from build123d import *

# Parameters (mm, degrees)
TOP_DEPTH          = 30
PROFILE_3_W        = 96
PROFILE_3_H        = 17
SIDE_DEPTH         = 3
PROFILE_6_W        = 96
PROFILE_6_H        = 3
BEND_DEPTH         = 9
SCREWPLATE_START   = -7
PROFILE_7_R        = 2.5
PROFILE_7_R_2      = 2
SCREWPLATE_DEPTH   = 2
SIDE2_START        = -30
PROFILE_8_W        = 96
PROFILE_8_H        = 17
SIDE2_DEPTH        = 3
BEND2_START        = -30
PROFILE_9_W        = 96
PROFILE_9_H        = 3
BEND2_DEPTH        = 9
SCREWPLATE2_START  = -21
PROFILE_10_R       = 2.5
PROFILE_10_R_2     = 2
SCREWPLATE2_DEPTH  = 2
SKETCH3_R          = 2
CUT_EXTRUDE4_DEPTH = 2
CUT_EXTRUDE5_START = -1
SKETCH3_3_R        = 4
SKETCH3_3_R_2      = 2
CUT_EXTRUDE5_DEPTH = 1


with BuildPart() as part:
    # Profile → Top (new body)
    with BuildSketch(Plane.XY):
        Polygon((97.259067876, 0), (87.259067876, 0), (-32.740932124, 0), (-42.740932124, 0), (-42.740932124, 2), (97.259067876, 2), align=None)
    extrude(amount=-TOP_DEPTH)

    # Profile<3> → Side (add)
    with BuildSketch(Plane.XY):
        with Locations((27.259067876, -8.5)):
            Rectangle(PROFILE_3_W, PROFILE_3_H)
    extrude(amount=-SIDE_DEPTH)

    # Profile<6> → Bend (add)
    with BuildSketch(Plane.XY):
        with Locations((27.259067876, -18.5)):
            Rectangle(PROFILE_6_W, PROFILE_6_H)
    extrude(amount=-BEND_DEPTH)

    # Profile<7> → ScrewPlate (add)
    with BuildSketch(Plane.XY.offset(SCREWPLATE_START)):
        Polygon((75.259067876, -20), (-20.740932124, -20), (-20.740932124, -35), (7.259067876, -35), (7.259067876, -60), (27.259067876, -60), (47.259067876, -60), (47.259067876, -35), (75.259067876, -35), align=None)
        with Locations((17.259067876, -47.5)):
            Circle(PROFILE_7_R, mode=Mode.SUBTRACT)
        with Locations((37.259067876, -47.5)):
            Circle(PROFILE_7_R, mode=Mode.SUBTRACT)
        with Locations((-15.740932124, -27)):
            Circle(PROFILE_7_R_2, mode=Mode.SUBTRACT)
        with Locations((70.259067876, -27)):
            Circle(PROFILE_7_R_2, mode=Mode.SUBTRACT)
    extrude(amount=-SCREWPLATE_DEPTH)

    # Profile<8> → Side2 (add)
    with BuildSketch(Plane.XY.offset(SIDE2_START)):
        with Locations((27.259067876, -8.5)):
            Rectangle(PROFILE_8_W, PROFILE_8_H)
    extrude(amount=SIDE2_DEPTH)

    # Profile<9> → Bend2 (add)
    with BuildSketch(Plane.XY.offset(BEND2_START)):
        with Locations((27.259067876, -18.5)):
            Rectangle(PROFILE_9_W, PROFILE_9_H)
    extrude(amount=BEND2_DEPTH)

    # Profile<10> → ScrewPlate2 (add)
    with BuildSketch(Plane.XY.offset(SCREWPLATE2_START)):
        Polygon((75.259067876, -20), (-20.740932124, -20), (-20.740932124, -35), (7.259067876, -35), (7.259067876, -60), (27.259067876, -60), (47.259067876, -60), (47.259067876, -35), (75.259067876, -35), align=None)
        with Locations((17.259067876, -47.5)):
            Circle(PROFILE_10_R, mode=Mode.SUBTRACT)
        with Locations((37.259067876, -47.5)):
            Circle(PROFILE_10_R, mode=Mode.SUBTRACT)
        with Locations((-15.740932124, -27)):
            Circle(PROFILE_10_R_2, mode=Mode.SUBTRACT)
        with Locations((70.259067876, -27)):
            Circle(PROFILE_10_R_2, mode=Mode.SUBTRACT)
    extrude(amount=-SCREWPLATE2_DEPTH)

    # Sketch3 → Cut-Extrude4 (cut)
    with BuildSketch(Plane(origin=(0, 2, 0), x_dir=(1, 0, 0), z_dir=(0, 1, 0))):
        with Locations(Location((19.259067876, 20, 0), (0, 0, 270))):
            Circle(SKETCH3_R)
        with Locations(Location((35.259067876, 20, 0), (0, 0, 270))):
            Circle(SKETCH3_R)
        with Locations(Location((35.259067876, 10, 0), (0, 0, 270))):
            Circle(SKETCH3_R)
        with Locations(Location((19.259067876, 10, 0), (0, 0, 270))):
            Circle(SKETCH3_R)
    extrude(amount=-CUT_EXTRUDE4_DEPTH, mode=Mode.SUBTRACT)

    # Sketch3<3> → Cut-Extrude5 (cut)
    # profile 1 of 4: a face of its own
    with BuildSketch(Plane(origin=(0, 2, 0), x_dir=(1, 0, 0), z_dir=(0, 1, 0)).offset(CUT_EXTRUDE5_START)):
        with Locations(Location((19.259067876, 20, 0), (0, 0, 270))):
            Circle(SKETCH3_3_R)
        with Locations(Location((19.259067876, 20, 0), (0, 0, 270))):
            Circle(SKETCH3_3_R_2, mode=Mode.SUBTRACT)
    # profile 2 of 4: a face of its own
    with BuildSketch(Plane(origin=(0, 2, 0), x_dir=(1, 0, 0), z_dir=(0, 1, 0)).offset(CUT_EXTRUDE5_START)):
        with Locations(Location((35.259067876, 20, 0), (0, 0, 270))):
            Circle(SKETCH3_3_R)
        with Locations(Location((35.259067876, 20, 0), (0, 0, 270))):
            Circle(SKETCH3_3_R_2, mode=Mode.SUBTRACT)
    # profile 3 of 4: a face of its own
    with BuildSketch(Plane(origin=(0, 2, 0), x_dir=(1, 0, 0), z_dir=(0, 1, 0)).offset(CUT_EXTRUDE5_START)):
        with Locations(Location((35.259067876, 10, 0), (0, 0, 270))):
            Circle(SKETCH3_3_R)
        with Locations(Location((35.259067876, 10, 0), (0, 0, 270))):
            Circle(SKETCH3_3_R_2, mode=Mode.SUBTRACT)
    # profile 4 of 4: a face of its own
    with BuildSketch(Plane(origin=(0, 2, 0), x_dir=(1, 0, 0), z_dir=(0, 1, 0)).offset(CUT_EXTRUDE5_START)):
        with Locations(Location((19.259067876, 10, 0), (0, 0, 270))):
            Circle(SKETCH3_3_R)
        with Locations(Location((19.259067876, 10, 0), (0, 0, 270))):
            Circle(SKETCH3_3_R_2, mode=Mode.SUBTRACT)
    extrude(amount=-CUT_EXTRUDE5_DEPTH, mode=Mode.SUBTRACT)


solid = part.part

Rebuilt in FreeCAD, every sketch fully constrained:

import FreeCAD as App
import Part
import Sketcher

V = App.Vector
Q = App.Units.Quantity


def add_polygon(sketch, points):
    """Adds a closed chain of lines whose ends are joined by coincident constraints."""
    first, n = sketch.GeometryCount, len(points)
    for a, b in zip(points, points[1:] + points[:1]):
        sketch.addGeometry(Part.LineSegment(App.Vector(*a, 0), App.Vector(*b, 0)), False)
    for i in range(n):
        sketch.addConstraint(Sketcher.Constraint("Coincident", first + i, 2, first + (i + 1) % n, 1))

doc = App.newDocument("Part")
body = doc.addObject("PartDesign::Body", "Body")

# Sketch on XY plane
sketch1 = body.newObject("Sketcher::SketchObject", "Sketch")
sketch1.AttachmentSupport = (doc.getObject("XY_Plane"), [""])
sketch1.MapMode = "FlatFace"
add_polygon(sketch1, [(-42.7, 0), (97.3, 0), (97.3, 2), (-42.7, 2)])  # lines 0-3
sketch1.addConstraint(Sketcher.Constraint("Horizontal", 0))
sketch1.addConstraint(Sketcher.Constraint("Vertical", 1))
sketch1.addConstraint(Sketcher.Constraint("Horizontal", 2))
sketch1.addConstraint(Sketcher.Constraint("Vertical", 3))
sketch1.addConstraint(Sketcher.Constraint("PointOnObject", 0, 2, -1))
sketch1.addConstraint(Sketcher.Constraint("DistanceX", 0, 1, 0, 2, Q("140 mm")))
sketch1.addConstraint(Sketcher.Constraint("DistanceY", 1, 1, 1, 2, Q("2 mm")))
sketch1.addConstraint(Sketcher.Constraint("DistanceX", -1, 1, 0, 2, Q("97.259068 mm")))
pad1 = body.newObject("PartDesign::Pad", "Pad")
pad1.Profile = sketch1
pad1.Length = 30
pad1.Reversed = True

# Sketch on XY plane
sketch2 = body.newObject("Sketcher::SketchObject", "Sketch001")
sketch2.AttachmentSupport = (doc.getObject("XY_Plane"), [""])
sketch2.MapMode = "FlatFace"
add_polygon(sketch2, [(-21, 0), (-21, -17), (75, -17), (75, 0)])  # lines 0-3
sketch2.addConstraint(Sketcher.Constraint("Vertical", 0))
sketch2.addConstraint(Sketcher.Constraint("Horizontal", 1))
sketch2.addConstraint(Sketcher.Constraint("Vertical", 2))
sketch2.addConstraint(Sketcher.Constraint("Horizontal", 3))
sketch2.addConstraint(Sketcher.Constraint("PointOnObject", 2, 2, -1))
sketch2.addConstraint(Sketcher.Constraint("DistanceX", 1, 1, 1, 2, Q("96 mm")))
sketch2.addConstraint(Sketcher.Constraint("DistanceY", 0, 2, 0, 1, Q("17 mm")))
sketch2.addConstraint(Sketcher.Constraint("DistanceX", 0, 2, -1, 1, Q("20.740932 mm")))
pad2 = body.newObject("PartDesign::Pad", "Pad001")
pad2.Profile = sketch2
pad2.Length = 3
pad2.Reversed = True

# Sketch on XY plane
sketch3 = body.newObject("Sketcher::SketchObject", "Sketch002")
sketch3.AttachmentSupport = (doc.getObject("XY_Plane"), [""])
sketch3.MapMode = "FlatFace"
add_polygon(sketch3, [(-20.7, -17), (-20.7, -20), (75.3, -20), (75.3, -17)])  # lines 0-3
sketch3.addConstraint(Sketcher.Constraint("Vertical", 0))
sketch3.addConstraint(Sketcher.Constraint("Horizontal", 1))
sketch3.addConstraint(Sketcher.Constraint("Vertical", 2))
sketch3.addConstraint(Sketcher.Constraint("Horizontal", 3))
sketch3.addConstraint(Sketcher.Constraint("DistanceX", 1, 1, 1, 2, Q("96 mm")))
sketch3.addConstraint(Sketcher.Constraint("DistanceY", 0, 2, 0, 1, Q("3 mm")))
sketch3.addConstraint(Sketcher.Constraint("DistanceY", 0, 2, -1, 1, Q("20 mm")))
sketch3.addConstraint(Sketcher.Constraint("DistanceX", 0, 2, -1, 1, Q("20.740932 mm")))
pad3 = body.newObject("PartDesign::Pad", "Pad002")
pad3.Profile = sketch3
pad3.Length = 9
pad3.Reversed = True

# Sketch on XY plane
sketch4 = body.newObject("Sketcher::SketchObject", "Sketch003")
sketch4.AttachmentSupport = (doc.getObject("XY_Plane"), [""])
sketch4.MapMode = "FlatFace"
sketch4.AttachmentOffset = App.Placement(V(0, 0, -7), App.Rotation())
add_polygon(sketch4, [(75.3, -20), (-20.7, -20), (-20.7, -35), (7.3, -35), (7.3, -60), (47.3, -60), (47.3, -35), (75.3, -35)])  # lines 0-7
sketch4.addGeometry(Part.Circle(V(17.3, -47.5, 0), V(0, 0, 1), 2.5), False)  # 8
sketch4.addGeometry(Part.Circle(V(37.3, -47.5, 0), V(0, 0, 1), 2.5), False)  # 9
sketch4.addGeometry(Part.Circle(V(-15.7, -27, 0), V(0, 0, 1), 2), False)  # 10
sketch4.addGeometry(Part.Circle(V(70.3, -27, 0), V(0, 0, 1), 2), False)  # 11
sketch4.addConstraint(Sketcher.Constraint("Horizontal", 0))
sketch4.addConstraint(Sketcher.Constraint("Vertical", 1))
sketch4.addConstraint(Sketcher.Constraint("Horizontal", 2))
sketch4.addConstraint(Sketcher.Constraint("Vertical", 3))
sketch4.addConstraint(Sketcher.Constraint("Horizontal", 4))
sketch4.addConstraint(Sketcher.Constraint("Vertical", 5))
sketch4.addConstraint(Sketcher.Constraint("Horizontal", 6))
sketch4.addConstraint(Sketcher.Constraint("Vertical", 7))
sketch4.addConstraint(Sketcher.Constraint("Equal", 8, 9))
sketch4.addConstraint(Sketcher.Constraint("Equal", 10, 11))
sketch4.addConstraint(Sketcher.Constraint("Horizontal", 8, 3, 9, 3))
sketch4.addConstraint(Sketcher.Constraint("Horizontal", 10, 3, 11, 3))
sketch4.addConstraint(Sketcher.Constraint("Horizontal", 2, 2, 5, 2))
sketch4.addConstraint(Sketcher.Constraint("Equal", 2, 6))
sketch4.addConstraint(Sketcher.Constraint("Diameter", 8, Q("5 mm")))
sketch4.addConstraint(Sketcher.Constraint("Diameter", 10, Q("4 mm")))
sketch4.addConstraint(Sketcher.Constraint("DistanceX", 0, 2, 0, 1, Q("96 mm")))
sketch4.addConstraint(Sketcher.Constraint("DistanceX", 2, 1, 2, 2, Q("28 mm")))
sketch4.addConstraint(Sketcher.Constraint("DistanceY", 1, 2, 1, 1, Q("15 mm")))
sketch4.addConstraint(Sketcher.Constraint("DistanceY", 3, 2, 3, 1, Q("25 mm")))
sketch4.addConstraint(Sketcher.Constraint("DistanceY", 10, 3, -1, 1, Q("27 mm")))
sketch4.addConstraint(Sketcher.Constraint("DistanceY", 0, 2, -1, 1, Q("20 mm")))
sketch4.addConstraint(Sketcher.Constraint("DistanceX", 8, 3, 9, 3, Q("20 mm")))
sketch4.addConstraint(Sketcher.Constraint("DistanceX", 10, 3, 8, 3, Q("33 mm")))
sketch4.addConstraint(Sketcher.Constraint("DistanceX", 9, 3, 11, 3, Q("33 mm")))
sketch4.addConstraint(Sketcher.Constraint("DistanceX", 0, 2, 10, 3, Q("5 mm")))
sketch4.addConstraint(Sketcher.Constraint("DistanceY", 8, 3, -1, 1, Q("47.5 mm")))
sketch4.addConstraint(Sketcher.Constraint("DistanceX", -1, 1, 8, 3, Q("17.259068 mm")))
pad4 = body.newObject("PartDesign::Pad", "Pad003")
pad4.Profile = sketch4
pad4.Length = 2
pad4.Reversed = True

# Sketch on XY plane
sketch5 = body.newObject("Sketcher::SketchObject", "Sketch004")
sketch5.AttachmentSupport = (doc.getObject("XY_Plane"), [""])
sketch5.MapMode = "FlatFace"
sketch5.AttachmentOffset = App.Placement(V(0, 0, -30), App.Rotation())
add_polygon(sketch5, [(-21, 0), (-21, -17), (75, -17), (75, 0)])  # lines 0-3
sketch5.addConstraint(Sketcher.Constraint("Vertical", 0))
sketch5.addConstraint(Sketcher.Constraint("Horizontal", 1))
sketch5.addConstraint(Sketcher.Constraint("Vertical", 2))
sketch5.addConstraint(Sketcher.Constraint("Horizontal", 3))
sketch5.addConstraint(Sketcher.Constraint("PointOnObject", 2, 2, -1))
sketch5.addConstraint(Sketcher.Constraint("DistanceX", 1, 1, 1, 2, Q("96 mm")))
sketch5.addConstraint(Sketcher.Constraint("DistanceY", 0, 2, 0, 1, Q("17 mm")))
sketch5.addConstraint(Sketcher.Constraint("DistanceX", 0, 2, -1, 1, Q("20.740932 mm")))
pad5 = body.newObject("PartDesign::Pad", "Pad004")
pad5.Profile = sketch5
pad5.Length = 3

# Sketch on XY plane
sketch6 = body.newObject("Sketcher::SketchObject", "Sketch005")
sketch6.AttachmentSupport = (doc.getObject("XY_Plane"), [""])
sketch6.MapMode = "FlatFace"
sketch6.AttachmentOffset = App.Placement(V(0, 0, -30), App.Rotation())
add_polygon(sketch6, [(-20.7, -17), (-20.7, -20), (75.3, -20), (75.3, -17)])  # lines 0-3
sketch6.addConstraint(Sketcher.Constraint("Vertical", 0))
sketch6.addConstraint(Sketcher.Constraint("Horizontal", 1))
sketch6.addConstraint(Sketcher.Constraint("Vertical", 2))
sketch6.addConstraint(Sketcher.Constraint("Horizontal", 3))
sketch6.addConstraint(Sketcher.Constraint("DistanceX", 1, 1, 1, 2, Q("96 mm")))
sketch6.addConstraint(Sketcher.Constraint("DistanceY", 0, 2, 0, 1, Q("3 mm")))
sketch6.addConstraint(Sketcher.Constraint("DistanceY", 0, 2, -1, 1, Q("20 mm")))
sketch6.addConstraint(Sketcher.Constraint("DistanceX", 0, 2, -1, 1, Q("20.740932 mm")))
pad6 = body.newObject("PartDesign::Pad", "Pad005")
pad6.Profile = sketch6
pad6.Length = 9

# Sketch on XY plane
sketch7 = body.newObject("Sketcher::SketchObject", "Sketch006")
sketch7.AttachmentSupport = (doc.getObject("XY_Plane"), [""])
sketch7.MapMode = "FlatFace"
sketch7.AttachmentOffset = App.Placement(V(0, 0, -21), App.Rotation())
add_polygon(sketch7, [(75.3, -20), (-20.7, -20), (-20.7, -35), (7.3, -35), (7.3, -60), (47.3, -60), (47.3, -35), (75.3, -35)])  # lines 0-7
sketch7.addGeometry(Part.Circle(V(17.3, -47.5, 0), V(0, 0, 1), 2.5), False)  # 8
sketch7.addGeometry(Part.Circle(V(37.3, -47.5, 0), V(0, 0, 1), 2.5), False)  # 9
sketch7.addGeometry(Part.Circle(V(-15.7, -27, 0), V(0, 0, 1), 2), False)  # 10
sketch7.addGeometry(Part.Circle(V(70.3, -27, 0), V(0, 0, 1), 2), False)  # 11
sketch7.addConstraint(Sketcher.Constraint("Horizontal", 0))
sketch7.addConstraint(Sketcher.Constraint("Vertical", 1))
sketch7.addConstraint(Sketcher.Constraint("Horizontal", 2))
sketch7.addConstraint(Sketcher.Constraint("Vertical", 3))
sketch7.addConstraint(Sketcher.Constraint("Horizontal", 4))
sketch7.addConstraint(Sketcher.Constraint("Vertical", 5))
sketch7.addConstraint(Sketcher.Constraint("Horizontal", 6))
sketch7.addConstraint(Sketcher.Constraint("Vertical", 7))
sketch7.addConstraint(Sketcher.Constraint("Equal", 8, 9))
sketch7.addConstraint(Sketcher.Constraint("Equal", 10, 11))
sketch7.addConstraint(Sketcher.Constraint("Horizontal", 8, 3, 9, 3))
sketch7.addConstraint(Sketcher.Constraint("Horizontal", 10, 3, 11, 3))
sketch7.addConstraint(Sketcher.Constraint("Horizontal", 2, 2, 5, 2))
sketch7.addConstraint(Sketcher.Constraint("Equal", 2, 6))
sketch7.addConstraint(Sketcher.Constraint("Diameter", 8, Q("5 mm")))
sketch7.addConstraint(Sketcher.Constraint("Diameter", 10, Q("4 mm")))
sketch7.addConstraint(Sketcher.Constraint("DistanceX", 0, 2, 0, 1, Q("96 mm")))
sketch7.addConstraint(Sketcher.Constraint("DistanceX", 2, 1, 2, 2, Q("28 mm")))
sketch7.addConstraint(Sketcher.Constraint("DistanceY", 1, 2, 1, 1, Q("15 mm")))
sketch7.addConstraint(Sketcher.Constraint("DistanceY", 3, 2, 3, 1, Q("25 mm")))
sketch7.addConstraint(Sketcher.Constraint("DistanceY", 10, 3, -1, 1, Q("27 mm")))
sketch7.addConstraint(Sketcher.Constraint("DistanceY", 0, 2, -1, 1, Q("20 mm")))
sketch7.addConstraint(Sketcher.Constraint("DistanceX", 8, 3, 9, 3, Q("20 mm")))
sketch7.addConstraint(Sketcher.Constraint("DistanceX", 10, 3, 8, 3, Q("33 mm")))
sketch7.addConstraint(Sketcher.Constraint("DistanceX", 9, 3, 11, 3, Q("33 mm")))
sketch7.addConstraint(Sketcher.Constraint("DistanceX", 0, 2, 10, 3, Q("5 mm")))
sketch7.addConstraint(Sketcher.Constraint("DistanceY", 8, 3, -1, 1, Q("47.5 mm")))
sketch7.addConstraint(Sketcher.Constraint("DistanceX", -1, 1, 8, 3, Q("17.259068 mm")))
pad7 = body.newObject("PartDesign::Pad", "Pad006")
pad7.Profile = sketch7
pad7.Length = 2
pad7.Reversed = True

# Sketch on XZ plane
sketch8 = body.newObject("Sketcher::SketchObject", "Sketch007")
sketch8.AttachmentSupport = (doc.getObject("XZ_Plane"), [""])
sketch8.MapMode = "FlatFace"
sketch8.AttachmentOffset = App.Placement(V(0, 0, -2), App.Rotation())
sketch8.addGeometry(Part.Circle(V(19.3, -20, 0), V(0, 0, 1), 2), False)
sketch8.addGeometry(Part.Circle(V(35.3, -20, 0), V(0, 0, 1), 2), False)
sketch8.addGeometry(Part.Circle(V(35.3, -10, 0), V(0, 0, 1), 2), False)
sketch8.addGeometry(Part.Circle(V(19.3, -10, 0), V(0, 0, 1), 2), False)
sketch8.addConstraint(Sketcher.Constraint("Equal", 0, 1))
sketch8.addConstraint(Sketcher.Constraint("Equal", 1, 2))
sketch8.addConstraint(Sketcher.Constraint("Equal", 2, 3))
sketch8.addConstraint(Sketcher.Constraint("Horizontal", 0, 3, 1, 3))
sketch8.addConstraint(Sketcher.Constraint("Horizontal", 2, 3, 3, 3))
sketch8.addConstraint(Sketcher.Constraint("Vertical", 1, 3, 2, 3))
sketch8.addConstraint(Sketcher.Constraint("Vertical", 0, 3, 3, 3))
sketch8.addConstraint(Sketcher.Constraint("Diameter", 0, Q("4 mm")))
sketch8.addConstraint(Sketcher.Constraint("DistanceY", 0, 3, -1, 1, Q("20 mm")))
sketch8.addConstraint(Sketcher.Constraint("DistanceY", 2, 3, -1, 1, Q("10 mm")))
sketch8.addConstraint(Sketcher.Constraint("DistanceX", 0, 3, 1, 3, Q("16 mm")))
sketch8.addConstraint(Sketcher.Constraint("DistanceX", -1, 1, 0, 3, Q("19.259068 mm")))
pocket1 = body.newObject("PartDesign::Pocket", "Pocket")
pocket1.Profile = sketch8
pocket1.Length = 2
pocket1.Reversed = True

# Sketch on XZ plane
sketch9 = body.newObject("Sketcher::SketchObject", "Sketch008")
sketch9.AttachmentSupport = (doc.getObject("XZ_Plane"), [""])
sketch9.MapMode = "FlatFace"
sketch9.AttachmentOffset = App.Placement(V(0, 0, -1), App.Rotation())
sketch9.addGeometry(Part.Circle(V(19.3, -20, 0), V(0, 0, 1), 4), False)
sketch9.addGeometry(Part.Circle(V(19.3, -20, 0), V(0, 0, 1), 2), False)
sketch9.addGeometry(Part.Circle(V(35.3, -20, 0), V(0, 0, 1), 4), False)
sketch9.addGeometry(Part.Circle(V(35.3, -20, 0), V(0, 0, 1), 2), False)
sketch9.addGeometry(Part.Circle(V(35.3, -10, 0), V(0, 0, 1), 4), False)
sketch9.addGeometry(Part.Circle(V(35.3, -10, 0), V(0, 0, 1), 2), False)
sketch9.addGeometry(Part.Circle(V(19.3, -10, 0), V(0, 0, 1), 4), False)
sketch9.addGeometry(Part.Circle(V(19.3, -10, 0), V(0, 0, 1), 2), False)
sketch9.addConstraint(Sketcher.Constraint("Coincident", 1, 3, 0, 3))
sketch9.addConstraint(Sketcher.Constraint("Coincident", 3, 3, 2, 3))
sketch9.addConstraint(Sketcher.Constraint("Coincident", 5, 3, 4, 3))
sketch9.addConstraint(Sketcher.Constraint("Coincident", 7, 3, 6, 3))
sketch9.addConstraint(Sketcher.Constraint("Equal", 0, 2))
sketch9.addConstraint(Sketcher.Constraint("Equal", 1, 3))
sketch9.addConstraint(Sketcher.Constraint("Equal", 2, 4))
sketch9.addConstraint(Sketcher.Constraint("Equal", 3, 5))
sketch9.addConstraint(Sketcher.Constraint("Equal", 4, 6))
sketch9.addConstraint(Sketcher.Constraint("Equal", 5, 7))
sketch9.addConstraint(Sketcher.Constraint("Horizontal", 1, 3, 2, 3))
sketch9.addConstraint(Sketcher.Constraint("Horizontal", 5, 3, 6, 3))
sketch9.addConstraint(Sketcher.Constraint("Vertical", 3, 3, 4, 3))
sketch9.addConstraint(Sketcher.Constraint("Vertical", 1, 3, 6, 3))
sketch9.addConstraint(Sketcher.Constraint("Diameter", 0, Q("8 mm")))
sketch9.addConstraint(Sketcher.Constraint("Diameter", 1, Q("4 mm")))
sketch9.addConstraint(Sketcher.Constraint("DistanceY", 0, 3, -1, 1, Q("20 mm")))
sketch9.addConstraint(Sketcher.Constraint("DistanceY", 4, 3, -1, 1, Q("10 mm")))
sketch9.addConstraint(Sketcher.Constraint("DistanceX", 0, 3, 2, 3, Q("16 mm")))
sketch9.addConstraint(Sketcher.Constraint("DistanceX", -1, 1, 0, 3, Q("19.259068 mm")))
pocket2 = body.newObject("PartDesign::Pocket", "Pocket001")
pocket2.Profile = sketch9
pocket2.Length = 1
pocket2.Reversed = True

doc.recompute()
